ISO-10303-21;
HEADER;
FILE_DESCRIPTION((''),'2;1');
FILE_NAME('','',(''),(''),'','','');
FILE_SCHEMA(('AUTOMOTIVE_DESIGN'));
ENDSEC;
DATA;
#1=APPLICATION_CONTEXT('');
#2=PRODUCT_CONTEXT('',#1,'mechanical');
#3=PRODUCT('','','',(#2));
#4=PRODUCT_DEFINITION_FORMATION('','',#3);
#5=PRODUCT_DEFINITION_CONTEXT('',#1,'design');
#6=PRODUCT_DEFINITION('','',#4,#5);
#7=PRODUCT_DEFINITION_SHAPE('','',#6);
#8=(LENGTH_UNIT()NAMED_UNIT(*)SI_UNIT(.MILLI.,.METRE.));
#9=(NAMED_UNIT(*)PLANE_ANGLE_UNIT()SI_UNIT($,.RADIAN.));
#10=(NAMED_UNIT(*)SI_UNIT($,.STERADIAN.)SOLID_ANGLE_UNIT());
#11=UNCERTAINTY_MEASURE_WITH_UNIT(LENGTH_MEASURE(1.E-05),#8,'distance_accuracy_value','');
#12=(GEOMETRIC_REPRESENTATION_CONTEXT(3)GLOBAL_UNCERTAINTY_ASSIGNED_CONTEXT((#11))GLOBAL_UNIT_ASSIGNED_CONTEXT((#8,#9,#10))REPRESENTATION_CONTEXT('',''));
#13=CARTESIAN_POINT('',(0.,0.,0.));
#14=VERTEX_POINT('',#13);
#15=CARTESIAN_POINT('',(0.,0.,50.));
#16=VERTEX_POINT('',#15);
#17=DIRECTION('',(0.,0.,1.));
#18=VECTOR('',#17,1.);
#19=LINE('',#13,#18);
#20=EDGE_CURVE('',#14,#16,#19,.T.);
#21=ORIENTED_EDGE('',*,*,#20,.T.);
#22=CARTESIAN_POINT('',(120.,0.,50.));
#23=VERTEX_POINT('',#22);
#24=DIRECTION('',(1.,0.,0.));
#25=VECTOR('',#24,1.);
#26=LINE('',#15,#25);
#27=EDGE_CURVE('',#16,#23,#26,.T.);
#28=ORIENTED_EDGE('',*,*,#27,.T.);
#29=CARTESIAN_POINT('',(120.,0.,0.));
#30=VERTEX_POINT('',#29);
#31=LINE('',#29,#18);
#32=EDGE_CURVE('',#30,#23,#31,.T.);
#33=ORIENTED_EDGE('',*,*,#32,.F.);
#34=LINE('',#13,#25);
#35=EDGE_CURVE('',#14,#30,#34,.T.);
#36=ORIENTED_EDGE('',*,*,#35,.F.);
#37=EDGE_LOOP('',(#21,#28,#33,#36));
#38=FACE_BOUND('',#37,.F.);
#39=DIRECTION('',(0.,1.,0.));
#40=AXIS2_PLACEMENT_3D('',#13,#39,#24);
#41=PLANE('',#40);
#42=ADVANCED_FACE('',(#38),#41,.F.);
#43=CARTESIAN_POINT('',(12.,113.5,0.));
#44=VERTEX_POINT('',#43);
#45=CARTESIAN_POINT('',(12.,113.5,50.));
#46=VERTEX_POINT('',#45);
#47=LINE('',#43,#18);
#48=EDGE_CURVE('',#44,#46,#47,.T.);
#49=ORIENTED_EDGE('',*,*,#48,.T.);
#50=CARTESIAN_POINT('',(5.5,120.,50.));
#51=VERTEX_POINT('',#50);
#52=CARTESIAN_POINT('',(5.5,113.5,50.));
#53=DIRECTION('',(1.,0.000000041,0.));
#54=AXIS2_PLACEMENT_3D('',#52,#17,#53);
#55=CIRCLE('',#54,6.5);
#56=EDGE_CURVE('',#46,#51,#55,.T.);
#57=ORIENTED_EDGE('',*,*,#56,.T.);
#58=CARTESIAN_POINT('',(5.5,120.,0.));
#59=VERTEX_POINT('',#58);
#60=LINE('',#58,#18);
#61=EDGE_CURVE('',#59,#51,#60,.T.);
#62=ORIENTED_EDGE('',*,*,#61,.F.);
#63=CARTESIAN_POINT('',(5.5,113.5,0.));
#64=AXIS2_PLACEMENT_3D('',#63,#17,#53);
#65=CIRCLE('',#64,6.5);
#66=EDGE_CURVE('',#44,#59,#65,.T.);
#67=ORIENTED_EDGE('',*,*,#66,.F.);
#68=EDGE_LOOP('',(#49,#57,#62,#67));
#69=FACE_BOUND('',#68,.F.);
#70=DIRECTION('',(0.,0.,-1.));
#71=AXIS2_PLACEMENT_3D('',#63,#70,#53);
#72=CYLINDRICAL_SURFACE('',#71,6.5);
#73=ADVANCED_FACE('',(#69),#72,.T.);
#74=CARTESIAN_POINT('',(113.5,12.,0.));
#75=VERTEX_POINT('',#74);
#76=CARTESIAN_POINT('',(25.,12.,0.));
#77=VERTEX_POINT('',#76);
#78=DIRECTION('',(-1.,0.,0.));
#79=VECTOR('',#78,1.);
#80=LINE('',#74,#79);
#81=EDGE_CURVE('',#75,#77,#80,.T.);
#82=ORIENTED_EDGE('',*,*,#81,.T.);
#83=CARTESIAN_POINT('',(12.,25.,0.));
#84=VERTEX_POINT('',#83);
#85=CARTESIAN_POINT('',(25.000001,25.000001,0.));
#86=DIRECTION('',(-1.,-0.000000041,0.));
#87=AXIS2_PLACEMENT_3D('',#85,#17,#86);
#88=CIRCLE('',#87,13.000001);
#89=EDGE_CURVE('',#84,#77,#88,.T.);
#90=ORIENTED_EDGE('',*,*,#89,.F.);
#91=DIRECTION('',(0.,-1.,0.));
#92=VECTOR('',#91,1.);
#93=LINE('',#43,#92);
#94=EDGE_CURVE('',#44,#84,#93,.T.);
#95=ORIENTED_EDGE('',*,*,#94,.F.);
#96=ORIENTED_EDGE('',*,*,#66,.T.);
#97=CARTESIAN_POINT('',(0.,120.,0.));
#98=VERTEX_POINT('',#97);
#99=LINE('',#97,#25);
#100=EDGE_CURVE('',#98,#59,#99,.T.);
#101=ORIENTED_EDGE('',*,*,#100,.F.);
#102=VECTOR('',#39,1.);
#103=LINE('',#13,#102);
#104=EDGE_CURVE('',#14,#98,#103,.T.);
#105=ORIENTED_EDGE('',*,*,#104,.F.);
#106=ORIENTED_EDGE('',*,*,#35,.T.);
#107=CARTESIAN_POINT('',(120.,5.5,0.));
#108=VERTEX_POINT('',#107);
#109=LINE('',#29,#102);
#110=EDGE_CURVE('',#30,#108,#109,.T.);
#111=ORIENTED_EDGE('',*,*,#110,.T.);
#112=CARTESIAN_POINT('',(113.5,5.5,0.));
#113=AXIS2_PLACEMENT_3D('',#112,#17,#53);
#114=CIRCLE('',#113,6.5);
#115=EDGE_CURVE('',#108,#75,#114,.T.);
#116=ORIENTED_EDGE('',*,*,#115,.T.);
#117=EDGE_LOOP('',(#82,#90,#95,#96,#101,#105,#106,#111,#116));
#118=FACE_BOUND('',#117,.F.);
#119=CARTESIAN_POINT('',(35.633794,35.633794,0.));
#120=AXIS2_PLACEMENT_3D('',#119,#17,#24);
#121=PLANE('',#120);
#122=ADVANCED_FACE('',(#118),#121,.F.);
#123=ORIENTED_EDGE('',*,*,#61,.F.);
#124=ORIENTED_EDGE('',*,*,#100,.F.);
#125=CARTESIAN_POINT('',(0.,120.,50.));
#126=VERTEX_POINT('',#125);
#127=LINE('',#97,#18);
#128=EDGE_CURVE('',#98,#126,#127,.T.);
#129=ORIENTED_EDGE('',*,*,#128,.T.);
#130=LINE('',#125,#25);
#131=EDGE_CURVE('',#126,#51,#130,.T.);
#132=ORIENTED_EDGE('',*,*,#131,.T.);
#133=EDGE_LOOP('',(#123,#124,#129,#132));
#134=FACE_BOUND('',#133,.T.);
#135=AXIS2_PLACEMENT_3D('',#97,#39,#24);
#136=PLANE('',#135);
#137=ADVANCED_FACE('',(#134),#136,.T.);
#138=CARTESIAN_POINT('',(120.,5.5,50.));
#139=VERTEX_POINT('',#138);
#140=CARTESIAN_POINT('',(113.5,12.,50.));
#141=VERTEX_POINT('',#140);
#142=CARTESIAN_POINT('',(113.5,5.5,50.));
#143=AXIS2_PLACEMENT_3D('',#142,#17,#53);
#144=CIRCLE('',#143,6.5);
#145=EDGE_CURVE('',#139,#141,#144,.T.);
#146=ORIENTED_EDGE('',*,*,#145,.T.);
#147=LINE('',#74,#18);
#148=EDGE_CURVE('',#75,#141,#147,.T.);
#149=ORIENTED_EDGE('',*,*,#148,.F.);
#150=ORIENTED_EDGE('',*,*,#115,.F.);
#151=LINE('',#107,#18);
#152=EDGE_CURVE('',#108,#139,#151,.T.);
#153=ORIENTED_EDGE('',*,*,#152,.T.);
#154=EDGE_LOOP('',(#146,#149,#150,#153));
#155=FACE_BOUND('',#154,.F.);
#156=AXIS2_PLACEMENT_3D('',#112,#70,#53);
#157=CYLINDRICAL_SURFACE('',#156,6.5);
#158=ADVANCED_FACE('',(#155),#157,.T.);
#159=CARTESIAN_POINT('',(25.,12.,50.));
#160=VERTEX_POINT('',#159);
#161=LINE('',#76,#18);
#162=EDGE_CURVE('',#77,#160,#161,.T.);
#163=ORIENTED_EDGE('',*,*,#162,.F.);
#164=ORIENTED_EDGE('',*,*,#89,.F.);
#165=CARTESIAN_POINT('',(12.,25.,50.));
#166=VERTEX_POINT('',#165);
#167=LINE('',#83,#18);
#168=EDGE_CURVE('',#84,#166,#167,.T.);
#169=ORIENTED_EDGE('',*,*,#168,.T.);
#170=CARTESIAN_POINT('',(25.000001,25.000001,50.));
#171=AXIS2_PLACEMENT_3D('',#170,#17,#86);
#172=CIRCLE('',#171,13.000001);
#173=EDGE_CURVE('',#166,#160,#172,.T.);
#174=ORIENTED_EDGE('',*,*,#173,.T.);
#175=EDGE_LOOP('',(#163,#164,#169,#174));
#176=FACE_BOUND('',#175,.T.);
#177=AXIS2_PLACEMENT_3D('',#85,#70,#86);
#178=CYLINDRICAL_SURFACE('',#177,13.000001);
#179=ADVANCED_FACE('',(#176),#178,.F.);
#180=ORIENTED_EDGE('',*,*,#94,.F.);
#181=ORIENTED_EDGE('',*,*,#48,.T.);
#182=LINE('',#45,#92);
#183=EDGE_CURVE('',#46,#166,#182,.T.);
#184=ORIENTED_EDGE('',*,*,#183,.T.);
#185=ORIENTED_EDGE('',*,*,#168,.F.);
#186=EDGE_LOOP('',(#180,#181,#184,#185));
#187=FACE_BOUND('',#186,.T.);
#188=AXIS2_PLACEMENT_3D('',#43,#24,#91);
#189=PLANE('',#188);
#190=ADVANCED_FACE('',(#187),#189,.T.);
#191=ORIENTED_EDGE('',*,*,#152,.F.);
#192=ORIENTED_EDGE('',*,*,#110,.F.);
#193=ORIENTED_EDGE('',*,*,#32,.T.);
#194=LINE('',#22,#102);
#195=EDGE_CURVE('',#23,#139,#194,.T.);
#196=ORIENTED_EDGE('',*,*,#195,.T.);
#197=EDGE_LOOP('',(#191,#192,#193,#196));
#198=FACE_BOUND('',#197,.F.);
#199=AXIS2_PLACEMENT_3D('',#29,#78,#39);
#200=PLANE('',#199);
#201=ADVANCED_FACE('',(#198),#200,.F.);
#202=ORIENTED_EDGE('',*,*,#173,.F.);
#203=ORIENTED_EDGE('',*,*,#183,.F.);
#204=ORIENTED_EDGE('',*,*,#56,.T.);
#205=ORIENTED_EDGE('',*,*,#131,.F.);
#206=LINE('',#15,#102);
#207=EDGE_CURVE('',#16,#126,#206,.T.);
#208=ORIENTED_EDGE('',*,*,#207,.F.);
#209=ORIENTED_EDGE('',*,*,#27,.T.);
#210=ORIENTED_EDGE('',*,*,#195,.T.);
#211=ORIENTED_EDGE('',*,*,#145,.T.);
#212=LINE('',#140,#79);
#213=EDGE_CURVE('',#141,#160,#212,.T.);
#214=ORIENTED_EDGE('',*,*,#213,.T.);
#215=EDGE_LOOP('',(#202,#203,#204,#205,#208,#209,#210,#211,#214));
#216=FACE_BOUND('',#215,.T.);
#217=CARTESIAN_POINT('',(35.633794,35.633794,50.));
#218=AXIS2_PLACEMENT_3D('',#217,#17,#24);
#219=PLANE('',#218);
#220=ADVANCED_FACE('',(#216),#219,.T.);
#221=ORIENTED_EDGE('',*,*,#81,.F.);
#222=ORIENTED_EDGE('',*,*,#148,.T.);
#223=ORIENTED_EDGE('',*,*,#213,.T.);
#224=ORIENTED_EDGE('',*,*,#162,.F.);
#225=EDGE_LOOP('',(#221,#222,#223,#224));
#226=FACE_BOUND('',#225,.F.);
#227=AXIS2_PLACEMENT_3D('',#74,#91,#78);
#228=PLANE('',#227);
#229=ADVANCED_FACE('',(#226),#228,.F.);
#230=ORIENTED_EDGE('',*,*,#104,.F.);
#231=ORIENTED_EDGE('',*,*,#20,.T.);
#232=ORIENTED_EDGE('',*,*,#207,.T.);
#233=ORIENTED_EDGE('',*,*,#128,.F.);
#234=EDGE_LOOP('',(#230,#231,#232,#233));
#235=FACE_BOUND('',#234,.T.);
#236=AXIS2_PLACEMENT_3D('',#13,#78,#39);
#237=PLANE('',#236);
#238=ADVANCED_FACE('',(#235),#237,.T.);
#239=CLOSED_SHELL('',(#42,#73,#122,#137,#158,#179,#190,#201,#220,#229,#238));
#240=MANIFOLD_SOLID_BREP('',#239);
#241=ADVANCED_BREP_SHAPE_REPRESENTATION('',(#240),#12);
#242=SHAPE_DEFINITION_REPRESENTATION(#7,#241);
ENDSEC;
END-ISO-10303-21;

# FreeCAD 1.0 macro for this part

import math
import FreeCAD as App
import Part
import Sketcher
from FreeCAD import Vector
Q = App.Units.Quantity

doc = App.newDocument("Part")
params = doc.addObject("Spreadsheet::Sheet", "Params")
for row, (alias, value) in enumerate([
    ("sketch1_radius", "13.000001 mm"),
    ("sketch1_radius2", "6.5 mm"),
    ("sketch1_width", "120 mm"),
    ("sketch1_width2", "88.5 mm"),
    ("pad1_length", "50 mm"),
], start=1):
    params.set(f"A{row}", alias)
    params.set(f"B{row}", "=" + value)
    params.setAlias(f"B{row}", alias)

body = doc.addObject("PartDesign::Body", "Body")

# Sketch on XY plane
sketch1 = doc.addObject("Sketcher::SketchObject", "Sketch")
body.addObject(sketch1)
sketch1.AttachmentSupport = (doc.XY_Plane, [""])
sketch1.MapMode = "FlatFace"
sketch1.addGeometry(Part.LineSegment(Vector(0, 0, 0), Vector(120, 0, 0)), False)
sketch1.addGeometry(Part.LineSegment(Vector(120, 0, 0), Vector(120, 6, 0)), False)
sketch1.addGeometry(Part.ArcOfCircle(Part.Circle(Vector(113, 5, 0), Vector(0, 0, 1), 7), math.radians(0), math.radians(90)), False)
sketch1.addGeometry(Part.LineSegment(Vector(114, 12, 0), Vector(25, 12, 0)), False)
sketch1.addGeometry(Part.ArcOfCircle(Part.Circle(Vector(25, 25, 0), Vector(0, 0, 1), 13), math.radians(-180), math.radians(-90)), False)
sketch1.addGeometry(Part.LineSegment(Vector(12, 25, 0), Vector(12, 114, 0)), False)
sketch1.addGeometry(Part.ArcOfCircle(Part.Circle(Vector(5, 113, 0), Vector(0, 0, 1), 7), math.radians(0), math.radians(90)), False)
sketch1.addGeometry(Part.LineSegment(Vector(6, 120, 0), Vector(0, 120, 0)), False)
sketch1.addGeometry(Part.LineSegment(Vector(0, 120, 0), Vector(0, 0, 0)), False)
sketch1.addConstraint(Sketcher.Constraint("Coincident", 0, 2, 1, 1))
sketch1.addConstraint(Sketcher.Constraint("Tangent", 1, 2, 2, 1))
sketch1.addConstraint(Sketcher.Constraint("Tangent", 2, 2, 3, 1))
sketch1.addConstraint(Sketcher.Constraint("Tangent", 3, 2, 4, 2))
sketch1.addConstraint(Sketcher.Constraint("Tangent", 4, 1, 5, 1))
sketch1.addConstraint(Sketcher.Constraint("Tangent", 5, 2, 6, 1))
sketch1.addConstraint(Sketcher.Constraint("Tangent", 6, 2, 7, 1))
sketch1.addConstraint(Sketcher.Constraint("Coincident", 7, 2, 8, 1))
sketch1.addConstraint(Sketcher.Constraint("Coincident", 8, 2, 0, 1))
sketch1.addConstraint(Sketcher.Constraint("Horizontal", 0))
sketch1.addConstraint(Sketcher.Constraint("Vertical", 1))
sketch1.addConstraint(Sketcher.Constraint("Horizontal", 3))
sketch1.addConstraint(Sketcher.Constraint("Vertical", 5))
sketch1.addConstraint(Sketcher.Constraint("Horizontal", 7))
sketch1.addConstraint(Sketcher.Constraint("Vertical", 8))
sketch1.addConstraint(Sketcher.Constraint("Coincident", 8, 2, -1, 1))
sketch1.addConstraint(Sketcher.Constraint("Equal", 2, 6))
sketch1.addConstraint(Sketcher.Constraint("Equal", 7, 1))
sketch1.addConstraint(Sketcher.Constraint("Equal", 3, 5))
sketch1.addConstraint(Sketcher.Constraint("Radius", 4, Q("13.000001 mm")))
sketch1.addConstraint(Sketcher.Constraint("Radius", 2, Q("6.5 mm")))
sketch1.addConstraint(Sketcher.Constraint("DistanceX", 0, 1, 0, 2, Q("120 mm")))
sketch1.addConstraint(Sketcher.Constraint("DistanceX", 3, 2, 3, 1, Q("88.5 mm")))
sketch1.setExpression("Constraints[19]", "Params.sketch1_radius")
sketch1.setExpression("Constraints[20]", "Params.sketch1_radius2")
sketch1.setExpression("Constraints[21]", "Params.sketch1_width")
sketch1.setExpression("Constraints[22]", "Params.sketch1_width2")
pad1 = doc.addObject("PartDesign::Pad", "Pad")
body.addObject(pad1)
pad1.Profile = sketch1
pad1.setExpression("Length", "Params.pad1_length")

doc.recompute()
